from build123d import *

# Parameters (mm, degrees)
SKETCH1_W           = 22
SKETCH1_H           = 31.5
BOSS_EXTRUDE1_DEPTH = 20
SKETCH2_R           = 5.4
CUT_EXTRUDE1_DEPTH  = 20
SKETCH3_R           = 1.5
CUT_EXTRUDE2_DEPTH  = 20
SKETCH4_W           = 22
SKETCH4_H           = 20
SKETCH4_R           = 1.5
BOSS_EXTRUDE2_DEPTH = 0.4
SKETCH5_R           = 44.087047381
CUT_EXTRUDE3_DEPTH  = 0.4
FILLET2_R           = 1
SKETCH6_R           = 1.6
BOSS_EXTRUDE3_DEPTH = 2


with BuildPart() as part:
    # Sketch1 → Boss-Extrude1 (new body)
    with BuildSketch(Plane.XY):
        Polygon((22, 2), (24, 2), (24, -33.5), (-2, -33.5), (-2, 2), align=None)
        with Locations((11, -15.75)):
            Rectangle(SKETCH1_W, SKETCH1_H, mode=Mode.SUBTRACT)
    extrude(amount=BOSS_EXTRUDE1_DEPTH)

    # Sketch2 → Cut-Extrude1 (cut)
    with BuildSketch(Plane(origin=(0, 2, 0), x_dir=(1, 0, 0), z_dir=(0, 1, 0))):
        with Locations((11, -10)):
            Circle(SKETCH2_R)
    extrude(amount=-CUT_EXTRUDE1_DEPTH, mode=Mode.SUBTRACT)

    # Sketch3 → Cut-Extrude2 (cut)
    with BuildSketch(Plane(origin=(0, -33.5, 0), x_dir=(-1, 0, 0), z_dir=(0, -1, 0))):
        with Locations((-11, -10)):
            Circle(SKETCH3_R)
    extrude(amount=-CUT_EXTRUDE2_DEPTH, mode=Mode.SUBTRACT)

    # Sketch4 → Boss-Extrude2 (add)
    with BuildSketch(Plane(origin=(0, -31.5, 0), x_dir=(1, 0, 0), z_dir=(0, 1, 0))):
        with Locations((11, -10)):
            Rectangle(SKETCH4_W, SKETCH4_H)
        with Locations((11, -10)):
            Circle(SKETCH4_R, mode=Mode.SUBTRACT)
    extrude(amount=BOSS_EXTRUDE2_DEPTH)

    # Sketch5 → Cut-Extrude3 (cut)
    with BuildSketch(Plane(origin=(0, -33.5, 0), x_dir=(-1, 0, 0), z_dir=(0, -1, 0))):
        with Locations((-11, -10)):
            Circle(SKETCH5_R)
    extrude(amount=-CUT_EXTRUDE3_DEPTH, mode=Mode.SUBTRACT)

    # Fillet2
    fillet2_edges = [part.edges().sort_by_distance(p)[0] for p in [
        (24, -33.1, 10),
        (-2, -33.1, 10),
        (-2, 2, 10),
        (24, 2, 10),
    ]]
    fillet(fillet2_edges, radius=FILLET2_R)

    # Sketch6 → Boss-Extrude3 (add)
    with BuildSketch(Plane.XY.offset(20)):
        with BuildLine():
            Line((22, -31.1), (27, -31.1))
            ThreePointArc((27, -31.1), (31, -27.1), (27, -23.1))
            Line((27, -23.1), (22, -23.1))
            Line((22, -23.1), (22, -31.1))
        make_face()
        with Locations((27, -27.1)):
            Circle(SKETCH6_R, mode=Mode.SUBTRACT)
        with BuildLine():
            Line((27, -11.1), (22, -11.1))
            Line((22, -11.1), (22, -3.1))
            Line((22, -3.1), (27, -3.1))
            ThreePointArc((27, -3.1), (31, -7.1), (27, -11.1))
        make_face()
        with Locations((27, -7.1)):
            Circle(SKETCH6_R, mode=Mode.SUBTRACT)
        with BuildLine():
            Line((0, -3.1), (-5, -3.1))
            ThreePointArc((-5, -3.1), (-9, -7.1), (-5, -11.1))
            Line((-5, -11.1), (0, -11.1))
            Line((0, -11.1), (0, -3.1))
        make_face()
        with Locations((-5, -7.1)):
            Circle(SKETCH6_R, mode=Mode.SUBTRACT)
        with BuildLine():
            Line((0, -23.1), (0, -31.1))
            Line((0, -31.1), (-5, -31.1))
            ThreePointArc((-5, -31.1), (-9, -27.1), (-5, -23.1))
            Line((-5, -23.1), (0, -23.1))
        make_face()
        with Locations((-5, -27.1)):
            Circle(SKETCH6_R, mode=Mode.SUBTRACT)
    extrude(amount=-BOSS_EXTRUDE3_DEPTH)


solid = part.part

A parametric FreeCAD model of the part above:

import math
import FreeCAD as App
import Part
import Sketcher
from FreeCAD import Vector


def edges_at(feature, points):
    """Names of the edges that pass closest to the given points."""
    edges = feature.Shape.Edges
    near = lambda p: min(range(len(edges)), key=lambda i: edges[i].distToShape(Part.Vertex(*p))[0])
    return sorted({f"Edge{near(p) + 1}" for p in points})

doc = App.newDocument("Part")
params = doc.addObject("Spreadsheet::Sheet", "Params")
for row, (alias, value) in enumerate([
    ("sketch1_width", "26 mm"),
    ("sketch1_width2", "22 mm"),
    ("sketch1_height", "35.5 mm"),
    ("sketch1_height2", "31.5 mm"),
    ("pad1_length", "20 mm"),
    ("sketch2_diameter", "10.8 mm"),
    ("pocket1_length", "20 mm"),
    ("sketch3_diameter", "3 mm"),
    ("pocket2_length", "20 mm"),
    ("sketch4_diameter", "3 mm"),
    ("sketch4_width", "22 mm"),
    ("sketch4_height", "20 mm"),
    ("pad2_length", "0.4 mm"),
    ("pocket3_length", "0.4 mm"),
    ("fillet_radius", "1 mm"),
    ("sketch6_radius", "4 mm"),
    ("sketch6_diameter", "3.2 mm"),
    ("sketch6_width", "5 mm"),
    ("pad3_length", "2 mm"),
], start=1):
    params.set(f"A{row}", alias)
    params.set(f"B{row}", "=" + value)
    params.setAlias(f"B{row}", alias)

body = doc.addObject("PartDesign::Body", "Body")

# Sketch on XY plane
sketch1 = doc.addObject("Sketcher::SketchObject", "Sketch")
body.addObject(sketch1)
sketch1.AttachmentSupport = (doc.XY_Plane, [""])
sketch1.MapMode = "FlatFace"
sketch1.addGeometry(Part.LineSegment(Vector(24, 2, 0), Vector(-2, 2, 0)), False)
sketch1.addGeometry(Part.LineSegment(Vector(-2, 2, 0), Vector(-2, -33.5, 0)), False)
sketch1.addGeometry(Part.LineSegment(Vector(-2, -33.5, 0), Vector(24, -33.5, 0)), False)
sketch1.addGeometry(Part.LineSegment(Vector(24, -33.5, 0), Vector(24, 2, 0)), False)
sketch1.addGeometry(Part.LineSegment(Vector(0, -31.5, 0), Vector(0, 0, 0)), False)
sketch1.addGeometry(Part.LineSegment(Vector(0, 0, 0), Vector(22, 0, 0)), False)
sketch1.addGeometry(Part.LineSegment(Vector(22, 0, 0), Vector(22, -31.5, 0)), False)
sketch1.addGeometry(Part.LineSegment(Vector(22, -31.5, 0), Vector(0, -31.5, 0)), False)
sketch1.addConstraint(Sketcher.Constraint("Coincident", 0, 2, 1, 1))
sketch1.addConstraint(Sketcher.Constraint("Coincident", 1, 2, 2, 1))
sketch1.addConstraint(Sketcher.Constraint("Coincident", 2, 2, 3, 1))
sketch1.addConstraint(Sketcher.Constraint("Coincident", 3, 2, 0, 1))
sketch1.addConstraint(Sketcher.Constraint("Coincident", 4, 2, 5, 1))
sketch1.addConstraint(Sketcher.Constraint("Coincident", 5, 2, 6, 1))
sketch1.addConstraint(Sketcher.Constraint("Coincident", 6, 2, 7, 1))
sketch1.addConstraint(Sketcher.Constraint("Coincident", 7, 2, 4, 1))
sketch1.addConstraint(Sketcher.Constraint("Horizontal", 0))
sketch1.addConstraint(Sketcher.Constraint("Vertical", 1))
sketch1.addConstraint(Sketcher.Constraint("Horizontal", 2))
sketch1.addConstraint(Sketcher.Constraint("Vertical", 3))
sketch1.addConstraint(Sketcher.Constraint("Vertical", 4))
sketch1.addConstraint(Sketcher.Constraint("Horizontal", 5))
sketch1.addConstraint(Sketcher.Constraint("Vertical", 6))
sketch1.addConstraint(Sketcher.Constraint("Horizontal", 7))
sketch1.addConstraint(Sketcher.Constraint("Coincident", 4, 2, -1, 1))
sketch1.addConstraint(Sketcher.Constraint("DistanceX", 0, 2, 0, 1, 26.0))
sketch1.addConstraint(Sketcher.Constraint("DistanceX", 5, 1, 5, 2, 22.0))
sketch1.addConstraint(Sketcher.Constraint("DistanceY", 1, 2, 1, 1, 35.5))
sketch1.addConstraint(Sketcher.Constraint("DistanceY", 4, 1, 4, 2, 31.5))
sketch1.addConstraint(Sketcher.Constraint("DistanceX", 0, 2, -1, 1, 2.0))
sketch1.addConstraint(Sketcher.Constraint("DistanceY", -1, 1, 0, 2, 2.0))
sketch1.setExpression("Constraints[17]", "Params.sketch1_width")
sketch1.setExpression("Constraints[18]", "Params.sketch1_width2")
sketch1.setExpression("Constraints[19]", "Params.sketch1_height")
sketch1.setExpression("Constraints[20]", "Params.sketch1_height2")
pad1 = doc.addObject("PartDesign::Pad", "Pad")
body.addObject(pad1)
pad1.Profile = sketch1
pad1.setExpression("Length", "Params.pad1_length")

# Sketch on XZ plane
sketch2 = doc.addObject("Sketcher::SketchObject", "Sketch001")
body.addObject(sketch2)
sketch2.AttachmentSupport = (doc.XZ_Plane, [""])
sketch2.MapMode = "FlatFace"
sketch2.AttachmentOffset = App.Placement(Vector(0, 0, -2), App.Rotation())
sketch2.addGeometry(Part.Circle(Vector(11, 10, 0), Vector(0, 0, 1), 5.4), False)
sketch2.addConstraint(Sketcher.Constraint("Diameter", 0, 10.8))
sketch2.addConstraint(Sketcher.Constraint("DistanceX", -1, 1, 0, 3, 11.0))
sketch2.addConstraint(Sketcher.Constraint("DistanceY", -1, 1, 0, 3, 10.0))
sketch2.setExpression("Constraints[0]", "Params.sketch2_diameter")
pocket1 = doc.addObject("PartDesign::Pocket", "Pocket")
body.addObject(pocket1)
pocket1.Profile = sketch2
pocket1.setExpression("Length", "Params.pocket1_length")
pocket1.Reversed = True

# Sketch on XZ plane
sketch3 = doc.addObject("Sketcher::SketchObject", "Sketch002")
body.addObject(sketch3)
sketch3.AttachmentSupport = (doc.XZ_Plane, [""])
sketch3.MapMode = "FlatFace"
sketch3.AttachmentOffset = App.Placement(Vector(0, 0, 33.5), App.Rotation())
sketch3.addGeometry(Part.Circle(Vector(11, 10, 0), Vector(0, 0, 1), 1.5), False)
sketch3.addConstraint(Sketcher.Constraint("Diameter", 0, 3.0))
sketch3.addConstraint(Sketcher.Constraint("DistanceX", -1, 1, 0, 3, 11.0))
sketch3.addConstraint(Sketcher.Constraint("DistanceY", -1, 1, 0, 3, 10.0))
sketch3.setExpression("Constraints[0]", "Params.sketch3_diameter")
pocket2 = doc.addObject("PartDesign::Pocket", "Pocket001")
body.addObject(pocket2)
pocket2.Profile = sketch3
pocket2.setExpression("Length", "Params.pocket2_length")

# Sketch on XZ plane
sketch4 = doc.addObject("Sketcher::SketchObject", "Sketch003")
body.addObject(sketch4)
sketch4.AttachmentSupport = (doc.XZ_Plane, [""])
sketch4.MapMode = "FlatFace"
sketch4.AttachmentOffset = App.Placement(Vector(0, 0, 31.5), App.Rotation())
sketch4.addGeometry(Part.LineSegment(Vector(0, 0, 0), Vector(0, 20, 0)), False)
sketch4.addGeometry(Part.LineSegment(Vector(0, 20, 0), Vector(22, 20, 0)), False)
sketch4.addGeometry(Part.LineSegment(Vector(22, 20, 0), Vector(22, 0, 0)), False)
sketch4.addGeometry(Part.LineSegment(Vector(22, 0, 0), Vector(0, 0, 0)), False)
sketch4.addGeometry(Part.Circle(Vector(11, 10, 0), Vector(0, 0, 1), 1.5), False)
sketch4.addConstraint(Sketcher.Constraint("Coincident", 0, 2, 1, 1))
sketch4.addConstraint(Sketcher.Constraint("Coincident", 1, 2, 2, 1))
sketch4.addConstraint(Sketcher.Constraint("Coincident", 2, 2, 3, 1))
sketch4.addConstraint(Sketcher.Constraint("Coincident", 3, 2, 0, 1))
sketch4.addConstraint(Sketcher.Constraint("Vertical", 0))
sketch4.addConstraint(Sketcher.Constraint("Horizontal", 1))
sketch4.addConstraint(Sketcher.Constraint("Vertical", 2))
sketch4.addConstraint(Sketcher.Constraint("Horizontal", 3))
sketch4.addConstraint(Sketcher.Constraint("Coincident", 3, 2, -1, 1))
sketch4.addConstraint(Sketcher.Constraint("Diameter", 4, 3.0))
sketch4.addConstraint(Sketcher.Constraint("DistanceX", 1, 1, 1, 2, 22.0))
sketch4.addConstraint(Sketcher.Constraint("DistanceY", 0, 1, 0, 2, 20.0))
sketch4.addConstraint(Sketcher.Constraint("DistanceX", -1, 1, 4, 3, 11.0))
sketch4.addConstraint(Sketcher.Constraint("DistanceY", -1, 1, 4, 3, 10.0))
sketch4.setExpression("Constraints[9]", "Params.sketch4_diameter")
sketch4.setExpression("Constraints[10]", "Params.sketch4_width")
sketch4.setExpression("Constraints[11]", "Params.sketch4_height")
pad2 = doc.addObject("PartDesign::Pad", "Pad001")
body.addObject(pad2)
pad2.Profile = sketch4
pad2.setExpression("Length", "Params.pad2_length")
pad2.Reversed = True

# Sketch on XZ plane
sketch5 = doc.addObject("Sketcher::SketchObject", "Sketch004")
body.addObject(sketch5)
sketch5.AttachmentSupport = (doc.XZ_Plane, [""])
sketch5.MapMode = "FlatFace"
sketch5.AttachmentOffset = App.Placement(Vector(0, 0, 33.5), App.Rotation())
sketch5.addGeometry(Part.Circle(Vector(11, 10, 0), Vector(0, 0, 1), 44.087047), False)
sketch5.addConstraint(Sketcher.Constraint("DistanceX", -1, 1, 0, 3, 11.0))
sketch5.addConstraint(Sketcher.Constraint("DistanceY", -1, 1, 0, 3, 10.0))
sketch5.addConstraint(Sketcher.Constraint("Diameter", 0, 88.174095))
pocket3 = doc.addObject("PartDesign::Pocket", "Pocket002")
body.addObject(pocket3)
pocket3.Profile = sketch5
pocket3.setExpression("Length", "Params.pocket3_length")
doc.recompute()

fillet = doc.addObject("PartDesign::Fillet", "Fillet")
body.addObject(fillet)
fillet.Base = (pocket3, edges_at(pocket3, [
    (24, -33.1, 10),
    (-2, -33.1, 10),
    (-2, 2, 10),
    (24, 2, 10),
]))
fillet.setExpression("Radius", "Params.fillet_radius")

# Sketch on XY plane
sketch6 = doc.addObject("Sketcher::SketchObject", "Sketch005")
body.addObject(sketch6)
sketch6.AttachmentSupport = (doc.XY_Plane, [""])
sketch6.MapMode = "FlatFace"
sketch6.AttachmentOffset = App.Placement(Vector(0, 0, 20), App.Rotation())
sketch6.addGeometry(Part.LineSegment(Vector(22, -31.1, 0), Vector(27, -31.1, 0)), False)
sketch6.addGeometry(Part.ArcOfCircle(Part.Circle(Vector(27, -27.1, 0), Vector(0, 0, 1), 4), math.radians(-90), math.radians(90)), False)
sketch6.addGeometry(Part.LineSegment(Vector(27, -23.1, 0), Vector(22, -23.1, 0)), False)
sketch6.addGeometry(Part.LineSegment(Vector(22, -23.1, 0), Vector(22, -31.1, 0)), False)
sketch6.addGeometry(Part.Circle(Vector(27, -27.1, 0), Vector(0, 0, 1), 1.6), False)
sketch6.addGeometry(Part.LineSegment(Vector(22, -11.1, 0), Vector(27, -11.1, 0)), False)
sketch6.addGeometry(Part.ArcOfCircle(Part.Circle(Vector(27, -7.1, 0), Vector(0, 0, 1), 4), math.radians(-90), math.radians(90)), False)
sketch6.addGeometry(Part.LineSegment(Vector(27, -3.1, 0), Vector(22, -3.1, 0)), False)
sketch6.addGeometry(Part.LineSegment(Vector(22, -3.1, 0), Vector(22, -11.1, 0)), False)
sketch6.addGeometry(Part.Circle(Vector(27, -7.1, 0), Vector(0, 0, 1), 1.6), False)
sketch6.addGeometry(Part.LineSegment(Vector(0, -3.1, 0), Vector(-5, -3.1, 0)), False)
sketch6.addGeometry(Part.ArcOfCircle(Part.Circle(Vector(-5, -7.1, 0), Vector(0, 0, 1), 4), math.radians(90), math.radians(270)), False)
sketch6.addGeometry(Part.LineSegment(Vector(-5, -11.1, 0), Vector(0, -11.1, 0)), False)
sketch6.addGeometry(Part.LineSegment(Vector(0, -11.1, 0), Vector(0, -3.1, 0)), False)
sketch6.addGeometry(Part.Circle(Vector(-5, -7.1, 0), Vector(0, 0, 1), 1.6), False)
sketch6.addGeometry(Part.LineSegment(Vector(0, -31.1, 0), Vector(0, -23.1, 0)), False)
sketch6.addGeometry(Part.LineSegment(Vector(0, -23.1, 0), Vector(-5, -23.1, 0)), False)
sketch6.addGeometry(Part.ArcOfCircle(Part.Circle(Vector(-5, -27.1, 0), Vector(0, 0, 1), 4), math.radians(90), math.radians(270)), False)
sketch6.addGeometry(Part.LineSegment(Vector(-5, -31.1, 0), Vector(0, -31.1, 0)), False)
sketch6.addGeometry(Part.Circle(Vector(-5, -27.1, 0), Vector(0, 0, 1), 1.6), False)
sketch6.addConstraint(Sketcher.Constraint("Tangent", 0, 2, 1, 1))
sketch6.addConstraint(Sketcher.Constraint("Tangent", 1, 2, 2, 1))
sketch6.addConstraint(Sketcher.Constraint("Coincident", 2, 2, 3, 1))
sketch6.addConstraint(Sketcher.Constraint("Coincident", 3, 2, 0, 1))
sketch6.addConstraint(Sketcher.Constraint("Tangent", 5, 2, 6, 1))
sketch6.addConstraint(Sketcher.Constraint("Tangent", 6, 2, 7, 1))
sketch6.addConstraint(Sketcher.Constraint("Coincident", 7, 2, 8, 1))
sketch6.addConstraint(Sketcher.Constraint("Coincident", 8, 2, 5, 1))
sketch6.addConstraint(Sketcher.Constraint("Tangent", 10, 2, 11, 1))
sketch6.addConstraint(Sketcher.Constraint("Tangent", 11, 2, 12, 1))
sketch6.addConstraint(Sketcher.Constraint("Coincident", 12, 2, 13, 1))
sketch6.addConstraint(Sketcher.Constraint("Coincident", 13, 2, 10, 1))
sketch6.addConstraint(Sketcher.Constraint("Coincident", 15, 2, 16, 1))
sketch6.addConstraint(Sketcher.Constraint("Tangent", 16, 2, 17, 1))
sketch6.addConstraint(Sketcher.Constraint("Tangent", 17, 2, 18, 1))
sketch6.addConstraint(Sketcher.Constraint("Coincident", 18, 2, 15, 1))
sketch6.addConstraint(Sketcher.Constraint("Horizontal", 0))
sketch6.addConstraint(Sketcher.Constraint("Horizontal", 2))
sketch6.addConstraint(Sketcher.Constraint("Vertical", 3))
sketch6.addConstraint(Sketcher.Constraint("Horizontal", 5))
sketch6.addConstraint(Sketcher.Constraint("Horizontal", 7))
sketch6.addConstraint(Sketcher.Constraint("Vertical", 8))
sketch6.addConstraint(Sketcher.Constraint("Horizontal", 10))
sketch6.addConstraint(Sketcher.Constraint("Horizontal", 12))
sketch6.addConstraint(Sketcher.Constraint("Vertical", 13))
sketch6.addConstraint(Sketcher.Constraint("Vertical", 15))
sketch6.addConstraint(Sketcher.Constraint("Horizontal", 16))
sketch6.addConstraint(Sketcher.Constraint("Horizontal", 18))
sketch6.addConstraint(Sketcher.Constraint("Coincident", 4, 3, 1, 3))
sketch6.addConstraint(Sketcher.Constraint("Coincident", 9, 3, 6, 3))
sketch6.addConstraint(Sketcher.Constraint("Coincident", 14, 3, 11, 3))
sketch6.addConstraint(Sketcher.Constraint("Coincident", 19, 3, 17, 3))
sketch6.addConstraint(Sketcher.Constraint("Equal", 1, 6))
sketch6.addConstraint(Sketcher.Constraint("Equal", 4, 9))
sketch6.addConstraint(Sketcher.Constraint("Equal", 6, 11))
sketch6.addConstraint(Sketcher.Constraint("Equal", 9, 14))
sketch6.addConstraint(Sketcher.Constraint("Equal", 11, 17))
sketch6.addConstraint(Sketcher.Constraint("Equal", 14, 19))
sketch6.addConstraint(Sketcher.Constraint("PointOnObject", 12, 2, -2))
sketch6.addConstraint(Sketcher.Constraint("PointOnObject", 15, 2, -2))
sketch6.addConstraint(Sketcher.Constraint("Horizontal", 9, 3, 11, 3))
sketch6.addConstraint(Sketcher.Constraint("Horizontal", 4, 3, 17, 3))
sketch6.addConstraint(Sketcher.Constraint("Vertical", 4, 3, 6, 3))
sketch6.addConstraint(Sketcher.Constraint("Vertical", 14, 3, 17, 3))
sketch6.addConstraint(Sketcher.Constraint("Vertical", 3, 2, 7, 2))
sketch6.addConstraint(Sketcher.Constraint("Equal", 7, 10))
sketch6.addConstraint(Sketcher.Constraint("Radius", 1, 4.0))
sketch6.addConstraint(Sketcher.Constraint("Diameter", 4, 3.2))
sketch6.addConstraint(Sketcher.Constraint("DistanceX", 0, 1, 0, 2, 5.0))
sketch6.addConstraint(Sketcher.Constraint("DistanceX", -1, 1, 1, 3, 27.0))
sketch6.addConstraint(Sketcher.Constraint("DistanceY", 1, 3, 6, 3, 20.0))
sketch6.addConstraint(Sketcher.Constraint("DistanceY", 1, 3, -1, 1, 27.1))
sketch6.setExpression("Constraints[46]", "Params.sketch6_radius")
sketch6.setExpression("Constraints[47]", "Params.sketch6_diameter")
sketch6.setExpression("Constraints[48]", "Params.sketch6_width")
pad3 = doc.addObject("PartDesign::Pad", "Pad002")
body.addObject(pad3)
pad3.Profile = sketch6
pad3.setExpression("Length", "Params.pad3_length")
pad3.Reversed = True

doc.recompute()
